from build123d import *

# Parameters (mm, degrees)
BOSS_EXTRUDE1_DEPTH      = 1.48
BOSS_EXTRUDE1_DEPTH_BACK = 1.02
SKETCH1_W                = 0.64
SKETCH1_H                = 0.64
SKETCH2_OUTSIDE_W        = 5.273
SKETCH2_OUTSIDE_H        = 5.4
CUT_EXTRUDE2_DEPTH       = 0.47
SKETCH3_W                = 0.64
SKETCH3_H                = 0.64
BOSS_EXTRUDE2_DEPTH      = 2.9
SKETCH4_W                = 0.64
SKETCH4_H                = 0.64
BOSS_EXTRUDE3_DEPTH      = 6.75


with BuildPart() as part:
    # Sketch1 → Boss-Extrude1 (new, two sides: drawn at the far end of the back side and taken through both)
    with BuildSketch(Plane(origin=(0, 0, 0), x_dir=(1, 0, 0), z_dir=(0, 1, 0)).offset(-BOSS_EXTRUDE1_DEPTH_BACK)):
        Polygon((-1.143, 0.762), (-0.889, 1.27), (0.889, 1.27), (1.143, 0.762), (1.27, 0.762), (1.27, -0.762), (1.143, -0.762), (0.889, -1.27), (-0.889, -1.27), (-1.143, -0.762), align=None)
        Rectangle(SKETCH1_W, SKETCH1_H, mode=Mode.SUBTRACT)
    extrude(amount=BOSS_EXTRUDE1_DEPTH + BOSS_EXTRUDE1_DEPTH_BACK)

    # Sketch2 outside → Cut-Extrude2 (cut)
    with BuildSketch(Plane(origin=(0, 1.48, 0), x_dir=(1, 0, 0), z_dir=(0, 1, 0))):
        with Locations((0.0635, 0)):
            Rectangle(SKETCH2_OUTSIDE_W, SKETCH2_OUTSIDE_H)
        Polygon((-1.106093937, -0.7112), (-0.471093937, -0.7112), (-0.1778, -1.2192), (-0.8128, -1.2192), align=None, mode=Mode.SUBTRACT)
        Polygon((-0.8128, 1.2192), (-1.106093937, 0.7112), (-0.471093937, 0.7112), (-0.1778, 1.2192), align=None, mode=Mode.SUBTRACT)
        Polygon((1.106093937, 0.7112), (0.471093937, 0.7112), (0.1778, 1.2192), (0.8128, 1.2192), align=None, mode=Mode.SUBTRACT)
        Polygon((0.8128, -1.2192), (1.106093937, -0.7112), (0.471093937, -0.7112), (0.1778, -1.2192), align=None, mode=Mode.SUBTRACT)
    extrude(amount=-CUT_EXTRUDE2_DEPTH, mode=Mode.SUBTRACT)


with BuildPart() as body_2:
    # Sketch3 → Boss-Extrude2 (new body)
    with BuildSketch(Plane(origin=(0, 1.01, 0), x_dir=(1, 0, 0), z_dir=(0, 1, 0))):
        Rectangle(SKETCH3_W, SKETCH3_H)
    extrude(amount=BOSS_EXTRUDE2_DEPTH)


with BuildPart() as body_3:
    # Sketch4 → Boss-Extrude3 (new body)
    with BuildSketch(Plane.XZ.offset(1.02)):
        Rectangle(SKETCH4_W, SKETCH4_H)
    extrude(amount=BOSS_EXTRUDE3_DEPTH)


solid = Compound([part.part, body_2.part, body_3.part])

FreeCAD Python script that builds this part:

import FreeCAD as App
import Part
import Sketcher

V = App.Vector
Q = App.Units.Quantity

doc = App.newDocument("Part")
body = doc.addObject("PartDesign::Body", "Body")

sketch1 = doc.addObject("Sketcher::SketchObject", "Sketch")
body.addObject(sketch1)
sketch1.AttachmentSupport = (doc.XZ_Plane, [""])
sketch1.MapMode = "FlatFace"
sketch1.addGeometry([
    Part.LineSegment(V(-0.889, -1.27, 0), V(-1.143, -0.762, 0)),
    Part.LineSegment(V(-1.143, -0.762, 0), V(-1.143, 0.762, 0)),
    Part.LineSegment(V(-1.143, 0.762, 0), V(-0.889, 1.27, 0)),
    Part.LineSegment(V(-0.889, 1.27, 0), V(0.889, 1.27, 0)),
    Part.LineSegment(V(0.889, 1.27, 0), V(1.143, 0.762, 0)),
    Part.LineSegment(V(1.143, 0.762, 0), V(1.27, 0.762, 0)),
    Part.LineSegment(V(1.27, 0.762, 0), V(1.27, -0.762, 0)),
    Part.LineSegment(V(1.27, -0.762, 0), V(1.143, -0.762, 0)),
    Part.LineSegment(V(1.143, -0.762, 0), V(0.889, -1.27, 0)),
    Part.LineSegment(V(0.889, -1.27, 0), V(-0.889, -1.27, 0)),
    Part.LineSegment(V(-0.32, 0.32, 0), V(-0.32, -0.32, 0)),
    Part.LineSegment(V(-0.32, -0.32, 0), V(0.32, -0.32, 0)),
    Part.LineSegment(V(0.32, -0.32, 0), V(0.32, 0.32, 0)),
    Part.LineSegment(V(0.32, 0.32, 0), V(-0.32, 0.32, 0)),
], False)
sketch1.addConstraint([
    Sketcher.Constraint("Coincident", 0, 2, 1, 1),
    Sketcher.Constraint("Coincident", 1, 2, 2, 1),
    Sketcher.Constraint("Coincident", 2, 2, 3, 1),
    Sketcher.Constraint("Coincident", 3, 2, 4, 1),
    Sketcher.Constraint("Coincident", 4, 2, 5, 1),
    Sketcher.Constraint("Coincident", 5, 2, 6, 1),
    Sketcher.Constraint("Coincident", 6, 2, 7, 1),
    Sketcher.Constraint("Coincident", 7, 2, 8, 1),
    Sketcher.Constraint("Coincident", 8, 2, 9, 1),
    Sketcher.Constraint("Coincident", 9, 2, 0, 1),
    Sketcher.Constraint("Coincident", 10, 2, 11, 1),
    Sketcher.Constraint("Coincident", 11, 2, 12, 1),
    Sketcher.Constraint("Coincident", 12, 2, 13, 1),
    Sketcher.Constraint("Coincident", 13, 2, 10, 1),
    Sketcher.Constraint("Vertical", 1),
    Sketcher.Constraint("Horizontal", 3),
    Sketcher.Constraint("Horizontal", 5),
    Sketcher.Constraint("Vertical", 6),
    Sketcher.Constraint("Horizontal", 7),
    Sketcher.Constraint("Horizontal", 9),
    Sketcher.Constraint("Vertical", 10),
    Sketcher.Constraint("Horizontal", 11),
    Sketcher.Constraint("Vertical", 12),
    Sketcher.Constraint("Horizontal", 13),
    Sketcher.Constraint("Symmetric", 0, 2, 4, 2, -1, 1),
    Sketcher.Constraint("Symmetric", 1, 2, 7, 2, -1, 1),
    Sketcher.Constraint("Symmetric", 2, 2, 8, 2, -1, 1),
    Sketcher.Constraint("Symmetric", 10, 2, 12, 2, -1, 1),
    Sketcher.Constraint("Parallel", 0, 4),
    Sketcher.Constraint("Horizontal", 1, 2, 4, 2),
    Sketcher.Constraint("Vertical", 3, 2, 8, 2),
    Sketcher.Constraint("Equal", 13, 10),
    Sketcher.Constraint("DistanceX", 3, 1, 3, 2, Q("0.07 in")),
    Sketcher.Constraint("DistanceY", 1, 1, 1, 2, Q("0.06 in")),
    Sketcher.Constraint("DistanceX", 5, 1, 5, 2, Q("0.005 in")),
    Sketcher.Constraint("DistanceY", -1, 1, 2, 2, Q("0.05 in")),
    Sketcher.Constraint("DistanceX", -1, 1, 5, 2, Q("0.05 in")),
    Sketcher.Constraint("DistanceX", 11, 1, 11, 2, Q("0.64 mm")),
])
pad1 = doc.addObject("PartDesign::Pad", "Pad")
body.addObject(pad1)
pad1.Profile = sketch1
pad1.Type = "TwoLengths"
pad1.Length = 1.48
pad1.Length2 = 1.02
pad1.Reversed = True

sketch2 = doc.addObject("Sketcher::SketchObject", "Sketch001")
body.addObject(sketch2)
sketch2.AttachmentSupport = (doc.XZ_Plane, [""])
sketch2.MapMode = "FlatFace"
sketch2.AttachmentOffset = App.Placement(V(0, 0, -1.48), App.Rotation())
sketch2.addGeometry([
    Part.LineSegment(V(-2.573, -2.7, 0), V(-2.573, 2.7, 0)),
    Part.LineSegment(V(-2.573, 2.7, 0), V(2.7, 2.7, 0)),
    Part.LineSegment(V(2.7, 2.7, 0), V(2.7, -2.7, 0)),
    Part.LineSegment(V(2.7, -2.7, 0), V(-2.573, -2.7, 0)),
    Part.LineSegment(V(-0.8128, 1.2192, 0), V(-1.106094, 0.7112, 0)),
    Part.LineSegment(V(-1.106094, 0.7112, 0), V(-0.471094, 0.7112, 0)),
    Part.LineSegment(V(-0.471094, 0.7112, 0), V(-0.1778, 1.2192, 0)),
    Part.LineSegment(V(-0.1778, 1.2192, 0), V(-0.8128, 1.2192, 0)),
    Part.LineSegment(V(1.106094, 0.7112, 0), V(0.8128, 1.2192, 0)),
    Part.LineSegment(V(0.8128, 1.2192, 0), V(0.1778, 1.2192, 0)),
    Part.LineSegment(V(0.1778, 1.2192, 0), V(0.471094, 0.7112, 0)),
    Part.LineSegment(V(0.471094, 0.7112, 0), V(1.106094, 0.7112, 0)),
    Part.LineSegment(V(-1.106094, -0.7112, 0), V(-0.8128, -1.2192, 0)),
    Part.LineSegment(V(-0.8128, -1.2192, 0), V(-0.1778, -1.2192, 0)),
    Part.LineSegment(V(-0.1778, -1.2192, 0), V(-0.471094, -0.7112, 0)),
    Part.LineSegment(V(-0.471094, -0.7112, 0), V(-1.106094, -0.7112, 0)),
    Part.LineSegment(V(0.8128, -1.2192, 0), V(1.106094, -0.7112, 0)),
    Part.LineSegment(V(1.106094, -0.7112, 0), V(0.471094, -0.7112, 0)),
    Part.LineSegment(V(0.471094, -0.7112, 0), V(0.1778, -1.2192, 0)),
    Part.LineSegment(V(0.1778, -1.2192, 0), V(0.8128, -1.2192, 0)),
], False)
sketch2.addConstraint([
    Sketcher.Constraint("Coincident", 0, 2, 1, 1),
    Sketcher.Constraint("Coincident", 1, 2, 2, 1),
    Sketcher.Constraint("Coincident", 2, 2, 3, 1),
    Sketcher.Constraint("Coincident", 3, 2, 0, 1),
    Sketcher.Constraint("Coincident", 4, 2, 5, 1),
    Sketcher.Constraint("Coincident", 5, 2, 6, 1),
    Sketcher.Constraint("Coincident", 6, 2, 7, 1),
    Sketcher.Constraint("Coincident", 7, 2, 4, 1),
    Sketcher.Constraint("Coincident", 8, 2, 9, 1),
    Sketcher.Constraint("Coincident", 9, 2, 10, 1),
    Sketcher.Constraint("Coincident", 10, 2, 11, 1),
    Sketcher.Constraint("Coincident", 11, 2, 8, 1),
    Sketcher.Constraint("Coincident", 12, 2, 13, 1),
    Sketcher.Constraint("Coincident", 13, 2, 14, 1),
    Sketcher.Constraint("Coincident", 14, 2, 15, 1),
    Sketcher.Constraint("Coincident", 15, 2, 12, 1),
    Sketcher.Constraint("Coincident", 16, 2, 17, 1),
    Sketcher.Constraint("Coincident", 17, 2, 18, 1),
    Sketcher.Constraint("Coincident", 18, 2, 19, 1),
    Sketcher.Constraint("Coincident", 19, 2, 16, 1),
    Sketcher.Constraint("Vertical", 0),
    Sketcher.Constraint("Horizontal", 1),
    Sketcher.Constraint("Vertical", 2),
    Sketcher.Constraint("Horizontal", 3),
    Sketcher.Constraint("Horizontal", 5),
    Sketcher.Constraint("Horizontal", 7),
    Sketcher.Constraint("Horizontal", 9),
    Sketcher.Constraint("Horizontal", 11),
    Sketcher.Constraint("Horizontal", 13),
    Sketcher.Constraint("Horizontal", 15),
    Sketcher.Constraint("Horizontal", 17),
    Sketcher.Constraint("Horizontal", 19),
    Sketcher.Constraint("Symmetric", 8, 2, 12, 2, -1, 1),
    Sketcher.Constraint("Symmetric", 10, 2, 14, 2, -1, 1),
    Sketcher.Constraint("Symmetric", 4, 2, 16, 2, -1, 1),
    Sketcher.Constraint("Symmetric", 6, 2, 18, 2, -1, 1),
    Sketcher.Constraint("Symmetric", 7, 2, 8, 2, -2),
    Sketcher.Constraint("Symmetric", 5, 2, 10, 2, -2),
    Sketcher.Constraint("Parallel", 4, 6),
    Sketcher.Constraint("Parallel", 8, 10),
    Sketcher.Constraint("Parallel", 10, 12),
    Sketcher.Constraint("Parallel", 12, 14),
    Sketcher.Constraint("Parallel", 6, 16),
    Sketcher.Constraint("Parallel", 16, 18),
    Sketcher.Constraint("Vertical", 6, 2, 13, 2),
    Sketcher.Constraint("Angle", 4, Q("-120 deg")),
    Sketcher.Constraint("DistanceX", 5, 1, 5, 2, Q("0.025 in")),
    Sketcher.Constraint("DistanceY", 5, 2, 6, 2, Q("0.02 in")),
    Sketcher.Constraint("DistanceY", -1, 1, 4, 2, Q("0.028 in")),
    Sketcher.Constraint("DistanceX", 6, 2, -1, 1, Q("0.007 in")),
    Sketcher.Constraint("DistanceX", 1, 1, 1, 2, Q("5.273 mm")),
    Sketcher.Constraint("DistanceY", 0, 1, 0, 2, Q("5.4 mm")),
    Sketcher.Constraint("DistanceX", 0, 2, -1, 1, Q("2.573 mm")),
    Sketcher.Constraint("DistanceY", -1, 1, 0, 2, Q("2.7 mm")),
])
pocket1 = doc.addObject("PartDesign::Pocket", "Pocket")
body.addObject(pocket1)
pocket1.Profile = sketch2
pocket1.Length = 0.47
pocket1.Reversed = True
body2 = doc.addObject("PartDesign::Body", "Body001")

sketch3 = doc.addObject("Sketcher::SketchObject", "Sketch002")
body2.addObject(sketch3)
sketch3.AttachmentSupport = (doc.getObject("XZ_Plane001"), [""])
sketch3.MapMode = "FlatFace"
sketch3.AttachmentOffset = App.Placement(V(0, 0, -1.01), App.Rotation())
sketch3.addGeometry([
    Part.LineSegment(V(-0.32, -0.32, 0), V(-0.32, 0.32, 0)),
    Part.LineSegment(V(-0.32, 0.32, 0), V(0.32, 0.32, 0)),
    Part.LineSegment(V(0.32, 0.32, 0), V(0.32, -0.32, 0)),
    Part.LineSegment(V(0.32, -0.32, 0), V(-0.32, -0.32, 0)),
], False)
sketch3.addConstraint([
    Sketcher.Constraint("Coincident", 0, 2, 1, 1),
    Sketcher.Constraint("Coincident", 1, 2, 2, 1),
    Sketcher.Constraint("Coincident", 2, 2, 3, 1),
    Sketcher.Constraint("Coincident", 3, 2, 0, 1),
    Sketcher.Constraint("Vertical", 0),
    Sketcher.Constraint("Horizontal", 1),
    Sketcher.Constraint("Vertical", 2),
    Sketcher.Constraint("Horizontal", 3),
    Sketcher.Constraint("Symmetric", 0, 2, 2, 2, -1, 1),
    Sketcher.Constraint("Equal", 3, 0),
    Sketcher.Constraint("DistanceX", 1, 1, 1, 2, Q("0.64 mm")),
])
pad2 = doc.addObject("PartDesign::Pad", "Pad001")
body2.addObject(pad2)
pad2.Profile = sketch3
pad2.Length = 2.9
pad2.Reversed = True
body3 = doc.addObject("PartDesign::Body", "Body002")

sketch4 = doc.addObject("Sketcher::SketchObject", "Sketch003")
body3.addObject(sketch4)
sketch4.AttachmentSupport = (doc.getObject("XZ_Plane002"), [""])
sketch4.MapMode = "FlatFace"
sketch4.AttachmentOffset = App.Placement(V(0, 0, 1.02), App.Rotation())
sketch4.addGeometry([
    Part.LineSegment(V(-0.32, 0.32, 0), V(-0.32, -0.32, 0)),
    Part.LineSegment(V(-0.32, -0.32, 0), V(0.32, -0.32, 0)),
    Part.LineSegment(V(0.32, -0.32, 0), V(0.32, 0.32, 0)),
    Part.LineSegment(V(0.32, 0.32, 0), V(-0.32, 0.32, 0)),
], False)
sketch4.addConstraint([
    Sketcher.Constraint("Coincident", 0, 2, 1, 1),
    Sketcher.Constraint("Coincident", 1, 2, 2, 1),
    Sketcher.Constraint("Coincident", 2, 2, 3, 1),
    Sketcher.Constraint("Coincident", 3, 2, 0, 1),
    Sketcher.Constraint("Vertical", 0),
    Sketcher.Constraint("Horizontal", 1),
    Sketcher.Constraint("Vertical", 2),
    Sketcher.Constraint("Horizontal", 3),
    Sketcher.Constraint("Symmetric", 0, 2, 2, 2, -1, 1),
    Sketcher.Constraint("Equal", 3, 0),
    Sketcher.Constraint("DistanceX", 1, 1, 1, 2, Q("0.64 mm")),
])
pad3 = doc.addObject("PartDesign::Pad", "Pad002")
body3.addObject(pad3)
pad3.Profile = sketch4
pad3.Length = 6.75

doc.recompute()
